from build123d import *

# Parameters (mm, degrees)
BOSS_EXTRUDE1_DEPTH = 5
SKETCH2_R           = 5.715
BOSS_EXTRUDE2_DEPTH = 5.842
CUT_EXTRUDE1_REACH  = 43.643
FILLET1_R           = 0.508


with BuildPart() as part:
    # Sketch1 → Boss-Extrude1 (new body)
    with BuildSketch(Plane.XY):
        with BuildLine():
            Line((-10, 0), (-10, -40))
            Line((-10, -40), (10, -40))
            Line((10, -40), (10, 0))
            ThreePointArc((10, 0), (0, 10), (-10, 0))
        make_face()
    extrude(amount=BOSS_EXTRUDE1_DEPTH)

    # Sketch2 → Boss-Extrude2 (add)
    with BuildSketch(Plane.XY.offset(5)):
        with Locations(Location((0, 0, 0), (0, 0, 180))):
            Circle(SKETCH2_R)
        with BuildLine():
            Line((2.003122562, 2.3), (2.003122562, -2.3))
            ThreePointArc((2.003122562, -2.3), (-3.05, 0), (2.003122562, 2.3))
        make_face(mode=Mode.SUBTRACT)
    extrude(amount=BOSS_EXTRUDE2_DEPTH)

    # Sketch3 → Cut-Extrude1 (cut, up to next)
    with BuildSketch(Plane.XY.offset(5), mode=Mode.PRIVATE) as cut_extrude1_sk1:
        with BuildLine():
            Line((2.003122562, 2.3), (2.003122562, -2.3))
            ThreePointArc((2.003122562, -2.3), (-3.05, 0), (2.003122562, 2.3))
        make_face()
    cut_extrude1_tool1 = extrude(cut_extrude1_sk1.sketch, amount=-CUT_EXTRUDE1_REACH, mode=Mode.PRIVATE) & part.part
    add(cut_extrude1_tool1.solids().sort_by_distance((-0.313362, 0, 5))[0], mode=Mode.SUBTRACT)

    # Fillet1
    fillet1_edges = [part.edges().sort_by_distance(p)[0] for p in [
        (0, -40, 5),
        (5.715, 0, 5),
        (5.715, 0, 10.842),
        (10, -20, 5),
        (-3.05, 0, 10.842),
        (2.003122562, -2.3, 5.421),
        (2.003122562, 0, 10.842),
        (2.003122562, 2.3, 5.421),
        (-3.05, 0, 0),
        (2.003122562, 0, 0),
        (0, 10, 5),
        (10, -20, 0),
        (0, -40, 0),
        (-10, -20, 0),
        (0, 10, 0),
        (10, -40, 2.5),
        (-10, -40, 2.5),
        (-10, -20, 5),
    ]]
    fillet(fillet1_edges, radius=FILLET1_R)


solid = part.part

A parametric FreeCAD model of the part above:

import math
import FreeCAD as App
import Part
import Sketcher

doc = App.newDocument("Part")
body = doc.addObject("PartDesign::Body", "Body")

# Sketch on XY plane
sketch1 = body.newObject("Sketcher::SketchObject", "Sketch")
sketch1.AttachmentSupport = (doc.getObject("XY_Plane"), [""])
sketch1.MapMode = "FlatFace"
sketch1.addGeometry(Part.LineSegment(App.Vector(-10, 0, 0), App.Vector(-10, -40, 0)), False)
sketch1.addGeometry(Part.LineSegment(App.Vector(-10, -40, 0), App.Vector(10, -40, 0)), False)
sketch1.addGeometry(Part.LineSegment(App.Vector(10, -40, 0), App.Vector(10, 0, 0)), False)
sketch1.addGeometry(Part.ArcOfCircle(Part.Circle(App.Vector(0, 0, 0), App.Vector(0, 0, 1), 10), math.radians(0), math.radians(180)), False)
sketch1.addConstraint(Sketcher.Constraint("Coincident", 0, 2, 1, 1))
sketch1.addConstraint(Sketcher.Constraint("Coincident", 1, 2, 2, 1))
sketch1.addConstraint(Sketcher.Constraint("Tangent", 2, 2, 3, 1))
sketch1.addConstraint(Sketcher.Constraint("Tangent", 3, 2, 0, 1))
sketch1.addConstraint(Sketcher.Constraint("Vertical", 0))
sketch1.addConstraint(Sketcher.Constraint("Horizontal", 1))
sketch1.addConstraint(Sketcher.Constraint("Vertical", 2))
sketch1.addConstraint(Sketcher.Constraint("Coincident", 3, 3, -1, 1))
sketch1.addConstraint(Sketcher.Constraint("Radius", 3, 10.0))
sketch1.addConstraint(Sketcher.Constraint("DistanceY", 0, 2, 0, 1, 40.0))
pad1 = body.newObject("PartDesign::Pad", "Pad")
pad1.Profile = sketch1
pad1.Length = 5

# Sketch on XY plane
sketch2 = body.newObject("Sketcher::SketchObject", "Sketch001")
sketch2.AttachmentSupport = (doc.getObject("XY_Plane"), [""])
sketch2.MapMode = "FlatFace"
sketch2.AttachmentOffset = App.Placement(App.Vector(0, 0, 5), App.Rotation())
sketch2.addGeometry(Part.Circle(App.Vector(0, 0, 0), App.Vector(0, 0, 1), 5.715), False)
sketch2.addGeometry(Part.ArcOfCircle(Part.Circle(App.Vector(0, 0, 0), App.Vector(0, 0, 1), 3.05), math.radians(48.946649), math.radians(311.053351)), False)
sketch2.addGeometry(Part.LineSegment(App.Vector(2.003123, 2.3, 0), App.Vector(2.003123, -2.3, 0)), False)
sketch2.addConstraint(Sketcher.Constraint("Coincident", 1, 1, 2, 1))
sketch2.addConstraint(Sketcher.Constraint("Coincident", 2, 2, 1, 2))
sketch2.addConstraint(Sketcher.Constraint("Vertical", 2))
sketch2.addConstraint(Sketcher.Constraint("Coincident", 0, 3, -1, 1))
sketch2.addConstraint(Sketcher.Constraint("Coincident", 1, 3, -1, 1))
sketch2.addConstraint(Sketcher.Constraint("Diameter", 0, 11.43))
sketch2.addConstraint(Sketcher.Constraint("Radius", 1, 3.05))
sketch2.addConstraint(Sketcher.Constraint("DistanceY", 2, 2, 2, 1, 4.6))
pad2 = body.newObject("PartDesign::Pad", "Pad001")
pad2.Profile = sketch2
pad2.Length = 5.842

# Sketch on XY plane
sketch3 = body.newObject("Sketcher::SketchObject", "Sketch002")
sketch3.AttachmentSupport = (doc.getObject("XY_Plane"), [""])
sketch3.MapMode = "FlatFace"
sketch3.AttachmentOffset = App.Placement(App.Vector(0, 0, 5), App.Rotation())
sketch3.addGeometry(Part.LineSegment(App.Vector(2.003123, -2.3, 0), App.Vector(2.003123, 2.3, 0)), False)
sketch3.addGeometry(Part.ArcOfCircle(Part.Circle(App.Vector(0, 0, 0), App.Vector(0, 0, 1), 3.05), math.radians(48.946649), math.radians(311.053351)), False)
sketch3.addConstraint(Sketcher.Constraint("Coincident", 0, 1, 1, 2))
sketch3.addConstraint(Sketcher.Constraint("Coincident", 1, 1, 0, 2))
sketch3.addConstraint(Sketcher.Constraint("Vertical", 0))
sketch3.addConstraint(Sketcher.Constraint("Coincident", 1, 3, -1, 1))
sketch3.addConstraint(Sketcher.Constraint("Radius", 1, 3.05))
sketch3.addConstraint(Sketcher.Constraint("DistanceY", 0, 1, 0, 2, 4.6))
pocket1 = body.newObject("PartDesign::Pocket", "Pocket")
pocket1.Profile = sketch3
pocket1.Type = "UpToFirst"
doc.recompute()

fillet = body.newObject("PartDesign::Fillet", "Fillet")
fillet.Base = (pocket1, ["Edge1"])
fillet.UseAllEdges = True
fillet.Radius = 0.508

doc.recompute()
